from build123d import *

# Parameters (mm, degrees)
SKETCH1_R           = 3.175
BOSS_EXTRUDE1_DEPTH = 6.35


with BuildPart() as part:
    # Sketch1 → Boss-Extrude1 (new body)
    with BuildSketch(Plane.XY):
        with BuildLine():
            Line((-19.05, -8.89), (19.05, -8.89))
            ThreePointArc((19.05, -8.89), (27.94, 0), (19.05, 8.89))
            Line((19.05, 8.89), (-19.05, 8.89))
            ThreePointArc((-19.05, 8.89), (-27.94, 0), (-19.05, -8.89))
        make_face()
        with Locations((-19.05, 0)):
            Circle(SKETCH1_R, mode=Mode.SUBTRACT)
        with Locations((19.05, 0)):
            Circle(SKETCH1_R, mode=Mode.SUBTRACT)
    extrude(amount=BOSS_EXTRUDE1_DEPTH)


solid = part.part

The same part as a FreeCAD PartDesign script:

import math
import FreeCAD as App
import Part
import Sketcher
Q = App.Units.Quantity

doc = App.newDocument("Part")
body = doc.addObject("PartDesign::Body", "Body")

sketch1 = body.newObject("Sketcher::SketchObject", "Sketch")
sketch1.AttachmentSupport = (doc.getObject("XY_Plane"), [""])
sketch1.MapMode = "FlatFace"
sketch1.addGeometry(Part.LineSegment(App.Vector(-19.1, -8.9, 0), App.Vector(19.1, -8.9, 0)), False)
sketch1.addGeometry(Part.ArcOfCircle(Part.Circle(App.Vector(19.1, 0, 0), App.Vector(0, 0, 1), 8.9), math.radians(-90), math.radians(90)), False)
sketch1.addGeometry(Part.LineSegment(App.Vector(19.1, 8.9, 0), App.Vector(-19.1, 8.9, 0)), False)
sketch1.addGeometry(Part.ArcOfCircle(Part.Circle(App.Vector(-19.1, 0, 0), App.Vector(0, 0, 1), 8.9), math.radians(90), math.radians(270)), False)
sketch1.addGeometry(Part.Circle(App.Vector(-19.1, 0, 0), App.Vector(0, 0, 1), 3.2), False)
sketch1.addGeometry(Part.Circle(App.Vector(19.1, 0, 0), App.Vector(0, 0, 1), 3.2), False)
sketch1.addConstraint(Sketcher.Constraint("Tangent", 0, 2, 1, 1))
sketch1.addConstraint(Sketcher.Constraint("Tangent", 1, 2, 2, 1))
sketch1.addConstraint(Sketcher.Constraint("Tangent", 2, 2, 3, 1))
sketch1.addConstraint(Sketcher.Constraint("Tangent", 3, 2, 0, 1))
sketch1.addConstraint(Sketcher.Constraint("Horizontal", 0))
sketch1.addConstraint(Sketcher.Constraint("Horizontal", 2))
sketch1.addConstraint(Sketcher.Constraint("Coincident", 4, 3, 3, 3))
sketch1.addConstraint(Sketcher.Constraint("Coincident", 5, 3, 1, 3))
sketch1.addConstraint(Sketcher.Constraint("Equal", 4, 5))
sketch1.addConstraint(Sketcher.Constraint("Symmetric", 1, 3, 3, 3, -1, 1))
sketch1.addConstraint(Sketcher.Constraint("Diameter", 4, Q("0.25 in")))
sketch1.addConstraint(Sketcher.Constraint("Radius", 1, Q("0.35 in")))
sketch1.addConstraint(Sketcher.Constraint("DistanceX", 0, 1, 0, 2, Q("1.5 in")))
pad1 = body.newObject("PartDesign::Pad", "Pad")
pad1.Profile = sketch1
pad1.Length = Q("0.25 in")

doc.recompute()
